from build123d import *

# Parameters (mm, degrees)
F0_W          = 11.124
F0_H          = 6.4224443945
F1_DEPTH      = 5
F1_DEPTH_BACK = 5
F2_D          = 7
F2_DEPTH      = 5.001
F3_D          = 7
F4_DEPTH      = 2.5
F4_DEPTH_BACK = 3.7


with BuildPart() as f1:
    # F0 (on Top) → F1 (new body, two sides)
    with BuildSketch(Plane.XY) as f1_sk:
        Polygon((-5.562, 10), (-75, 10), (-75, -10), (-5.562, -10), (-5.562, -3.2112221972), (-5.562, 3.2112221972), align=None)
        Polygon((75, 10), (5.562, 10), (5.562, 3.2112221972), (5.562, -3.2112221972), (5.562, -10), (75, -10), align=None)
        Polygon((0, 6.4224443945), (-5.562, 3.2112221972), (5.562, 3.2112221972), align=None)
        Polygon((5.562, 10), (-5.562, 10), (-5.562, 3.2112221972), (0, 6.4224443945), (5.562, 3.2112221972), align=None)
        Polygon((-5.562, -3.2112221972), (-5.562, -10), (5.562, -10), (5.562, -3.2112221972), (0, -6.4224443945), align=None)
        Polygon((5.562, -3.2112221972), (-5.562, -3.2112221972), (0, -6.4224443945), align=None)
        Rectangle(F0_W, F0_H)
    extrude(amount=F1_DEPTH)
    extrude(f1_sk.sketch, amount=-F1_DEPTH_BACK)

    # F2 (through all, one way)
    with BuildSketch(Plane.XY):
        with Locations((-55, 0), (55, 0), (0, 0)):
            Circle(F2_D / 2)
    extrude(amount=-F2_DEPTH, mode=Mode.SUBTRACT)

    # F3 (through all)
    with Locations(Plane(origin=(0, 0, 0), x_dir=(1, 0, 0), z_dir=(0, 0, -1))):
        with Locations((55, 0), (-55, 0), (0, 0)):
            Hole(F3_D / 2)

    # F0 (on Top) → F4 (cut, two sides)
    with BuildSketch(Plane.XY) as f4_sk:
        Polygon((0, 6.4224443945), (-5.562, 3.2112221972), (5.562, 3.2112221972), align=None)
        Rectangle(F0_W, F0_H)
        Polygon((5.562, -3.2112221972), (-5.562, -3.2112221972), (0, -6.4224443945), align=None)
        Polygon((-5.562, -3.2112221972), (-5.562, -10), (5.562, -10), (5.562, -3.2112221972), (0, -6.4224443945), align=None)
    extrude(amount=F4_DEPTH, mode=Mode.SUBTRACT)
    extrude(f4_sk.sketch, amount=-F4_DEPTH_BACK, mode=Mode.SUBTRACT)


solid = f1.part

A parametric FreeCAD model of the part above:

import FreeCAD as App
import Part
import Sketcher
from FreeCAD import Vector
Q = App.Units.Quantity


def add_polygon(sketch, points):
    """Adds a closed chain of lines whose ends are joined by coincident constraints."""
    first, n = sketch.GeometryCount, len(points)
    for a, b in zip(points, points[1:] + points[:1]):
        sketch.addGeometry(Part.LineSegment(App.Vector(*a, 0), App.Vector(*b, 0)), False)
    for i in range(n):
        sketch.addConstraint(Sketcher.Constraint("Coincident", first + i, 2, first + (i + 1) % n, 1))

doc = App.newDocument("Part")
body = doc.addObject("PartDesign::Body", "Body")

# Sketch on XY plane
sketch1 = doc.addObject("Sketcher::SketchObject", "Sketch")
body.addObject(sketch1)
sketch1.AttachmentSupport = (doc.XY_Plane, [""])
sketch1.MapMode = "FlatFace"
add_polygon(sketch1, [(-75, 10), (-75, -10), (75, -10), (75, 10)])  # lines 0-3
sketch1.addConstraint(Sketcher.Constraint("Vertical", 0))
sketch1.addConstraint(Sketcher.Constraint("Horizontal", 1))
sketch1.addConstraint(Sketcher.Constraint("Vertical", 2))
sketch1.addConstraint(Sketcher.Constraint("Horizontal", 3))
sketch1.addConstraint(Sketcher.Constraint("Symmetric", 0, 2, 2, 2, -1, 1))
sketch1.addConstraint(Sketcher.Constraint("DistanceX", 1, 1, 1, 2, 150.0))
sketch1.addConstraint(Sketcher.Constraint("DistanceY", 0, 2, 0, 1, 20.0))
pad1 = doc.addObject("PartDesign::Pad", "Pad")
body.addObject(pad1)
pad1.Profile = sketch1
pad1.Type = "TwoLengths"
pad1.Length = 5
pad1.Length2 = 5

# Sketch on XY plane
sketch2 = doc.addObject("Sketcher::SketchObject", "Sketch001")
body.addObject(sketch2)
sketch2.AttachmentSupport = (doc.XY_Plane, [""])
sketch2.MapMode = "FlatFace"
sketch2.addGeometry(Part.Circle(Vector(0, 0, 0), Vector(0, 0, 1), 3.5), False)
sketch2.addGeometry(Part.Circle(Vector(-55, 0, 0), Vector(0, 0, 1), 3.5), False)
sketch2.addGeometry(Part.Circle(Vector(55, 0, 0), Vector(0, 0, 1), 3.5), False)
sketch2.addConstraint(Sketcher.Constraint("Coincident", 0, 3, -1, 1))
sketch2.addConstraint(Sketcher.Constraint("Equal", 0, 1))
sketch2.addConstraint(Sketcher.Constraint("Equal", 1, 2))
sketch2.addConstraint(Sketcher.Constraint("Symmetric", 1, 3, 2, 3, -1, 1))
sketch2.addConstraint(Sketcher.Constraint("PointOnObject", 1, 3, -1))
sketch2.addConstraint(Sketcher.Constraint("Diameter", 0, 7.0))
sketch2.addConstraint(Sketcher.Constraint("DistanceX", 1, 3, -1, 1, 55.0))
pocket1 = doc.addObject("PartDesign::Pocket", "Pocket")
body.addObject(pocket1)
pocket1.Profile = sketch2
pocket1.Type = "ThroughAll"

# Sketch on XY plane
sketch3 = doc.addObject("Sketcher::SketchObject", "Sketch002")
body.addObject(sketch3)
sketch3.AttachmentSupport = (doc.XY_Plane, [""])
sketch3.MapMode = "FlatFace"
sketch3.addGeometry(Part.Circle(Vector(55, 0, 0), Vector(0, 0, 1), 3.5), False)
sketch3.addGeometry(Part.Circle(Vector(-55, 0, 0), Vector(0, 0, 1), 3.5), False)
sketch3.addGeometry(Part.Circle(Vector(0, 0, 0), Vector(0, 0, 1), 3.5), False)
sketch3.addConstraint(Sketcher.Constraint("Coincident", 2, 3, -1, 1))
sketch3.addConstraint(Sketcher.Constraint("Equal", 0, 1))
sketch3.addConstraint(Sketcher.Constraint("Equal", 1, 2))
sketch3.addConstraint(Sketcher.Constraint("Symmetric", 0, 3, 1, 3, -1, 1))
sketch3.addConstraint(Sketcher.Constraint("PointOnObject", 0, 3, -1))
sketch3.addConstraint(Sketcher.Constraint("Diameter", 0, 7.0))
sketch3.addConstraint(Sketcher.Constraint("DistanceX", -1, 1, 0, 3, 55.0))
doc.recompute()
hole = doc.addObject("PartDesign::Hole", "Hole")
body.addObject(hole)
hole.Profile = sketch3
hole.ThreadType = "None"
hole.Diameter = 7
hole.DepthType = "ThroughAll"
hole.Reversed = True

# Sketch on XY plane
sketch4 = doc.addObject("Sketcher::SketchObject", "Sketch003")
body.addObject(sketch4)
sketch4.AttachmentSupport = (doc.XY_Plane, [""])
sketch4.MapMode = "FlatFace"
add_polygon(sketch4, [(0, 6.422444), (-5.562, 3.211222), (-5.562, -10), (5.562, -10), (5.562, 3.211222)])  # lines 0-4
sketch4.addConstraint(Sketcher.Constraint("Vertical", 1))
sketch4.addConstraint(Sketcher.Constraint("Horizontal", 2))
sketch4.addConstraint(Sketcher.Constraint("Vertical", 3))
sketch4.addConstraint(Sketcher.Constraint("Symmetric", 0, 2, 3, 2, -2))
sketch4.addConstraint(Sketcher.Constraint("PointOnObject", 4, 2, -2))
sketch4.addConstraint(Sketcher.Constraint("Angle", 0, Q("-150 deg")))
sketch4.addConstraint(Sketcher.Constraint("DistanceY", 1, 2, -1, 1, 10.0))
sketch4.addConstraint(Sketcher.Constraint("DistanceX", 2, 1, 2, 2, 11.124))
sketch4.addConstraint(Sketcher.Constraint("DistanceY", 1, 2, 1, 1, 13.211222))
pocket2 = doc.addObject("PartDesign::Pocket", "Pocket001")
body.addObject(pocket2)
pocket2.Profile = sketch4
pocket2.Type = "TwoLengths"
pocket2.Length = 2.5
pocket2.Length2 = 3.7
pocket2.Reversed = True

doc.recompute()
